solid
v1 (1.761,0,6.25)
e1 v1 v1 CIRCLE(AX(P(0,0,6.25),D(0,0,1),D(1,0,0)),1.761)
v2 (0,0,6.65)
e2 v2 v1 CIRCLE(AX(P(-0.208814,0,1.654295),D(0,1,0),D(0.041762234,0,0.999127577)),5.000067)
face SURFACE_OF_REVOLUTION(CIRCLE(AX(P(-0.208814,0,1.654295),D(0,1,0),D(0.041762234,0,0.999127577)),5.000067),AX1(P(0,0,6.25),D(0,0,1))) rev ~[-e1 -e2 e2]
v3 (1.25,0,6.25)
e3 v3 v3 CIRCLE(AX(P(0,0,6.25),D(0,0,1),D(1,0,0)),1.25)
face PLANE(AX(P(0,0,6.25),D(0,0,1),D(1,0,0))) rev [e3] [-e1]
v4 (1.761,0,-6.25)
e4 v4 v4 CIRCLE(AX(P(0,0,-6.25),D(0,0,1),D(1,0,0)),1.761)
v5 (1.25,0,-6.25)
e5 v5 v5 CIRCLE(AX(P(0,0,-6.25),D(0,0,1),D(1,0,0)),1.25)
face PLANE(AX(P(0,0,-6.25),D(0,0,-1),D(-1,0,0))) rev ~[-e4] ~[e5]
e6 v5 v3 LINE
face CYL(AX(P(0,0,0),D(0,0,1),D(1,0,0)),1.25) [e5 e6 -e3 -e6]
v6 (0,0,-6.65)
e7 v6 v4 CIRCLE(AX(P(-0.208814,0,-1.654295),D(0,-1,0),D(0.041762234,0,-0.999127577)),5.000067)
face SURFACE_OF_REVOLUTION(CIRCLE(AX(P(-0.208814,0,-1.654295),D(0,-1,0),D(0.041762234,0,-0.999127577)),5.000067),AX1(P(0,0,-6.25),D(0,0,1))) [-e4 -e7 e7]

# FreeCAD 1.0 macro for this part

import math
import FreeCAD as App
import Part
import Sketcher
Q = App.Units.Quantity

doc = App.newDocument("Part")
body = doc.addObject("PartDesign::Body", "Body")

sketch1 = body.newObject("Sketcher::SketchObject", "Sketch")
sketch1.AttachmentSupport = (doc.getObject("XY_Plane"), [""])
sketch1.MapMode = "FlatFace"
sketch1.addGeometry(Part.Circle(App.Vector(0, 0, 0), App.Vector(0, 0, 1), 1.25), False)
sketch1.addConstraint(Sketcher.Constraint("Coincident", 0, 3, -1, 1))
sketch1.addConstraint(Sketcher.Constraint("Diameter", 0, Q("2.5 mm")))
pad1 = body.newObject("PartDesign::Pad", "Pad")
pad1.Profile = sketch1
pad1.Length = 12.5
pad1.Midplane = True

sketch2 = body.newObject("Sketcher::SketchObject", "Sketch001")
sketch2.AttachmentSupport = (doc.getObject("XZ_Plane"), [""])
sketch2.MapMode = "FlatFace"
sketch2.addGeometry(Part.LineSegment(App.Vector(1.761, 6.25, 0), App.Vector(0, 6.25, 0)), False)
sketch2.addGeometry(Part.LineSegment(App.Vector(0, 6.25, 0), App.Vector(0, 6.65, 0)), False)
sketch2.addGeometry(Part.ArcOfCircle(Part.Circle(App.Vector(-0.2088, 1.6544, 0), App.Vector(0, 0, 1), 4.999962), math.radians(66.798701), math.radians(87.606614)), False)
sketch2.addConstraint(Sketcher.Constraint("Coincident", 0, 2, 1, 1))
sketch2.addConstraint(Sketcher.Constraint("Coincident", 1, 2, 2, 2))
sketch2.addConstraint(Sketcher.Constraint("Coincident", 2, 1, 0, 1))
sketch2.addConstraint(Sketcher.Constraint("Horizontal", 0))
sketch2.addConstraint(Sketcher.Constraint("Vertical", 1))
sketch2.addConstraint(Sketcher.Constraint("PointOnObject", 0, 2, -2))
sketch2.addConstraint(Sketcher.Constraint("Radius", 2, Q("5 mm")))
sketch2.addConstraint(Sketcher.Constraint("DistanceY", 1, 1, 1, 2, Q("0.4 mm")))
sketch2.addConstraint(Sketcher.Constraint("DistanceX", 0, 2, 0, 1, Q("1.761 mm")))
sketch2.addConstraint(Sketcher.Constraint("DistanceY", -1, 1, 0, 2, Q("6.25 mm")))
revolution = body.newObject("PartDesign::Revolution", "Revolution")
revolution.Profile = sketch2
revolution.ReferenceAxis = (sketch2, ["V_Axis"])
revolution.Angle = 360
doc.recompute()

mirrored = body.newObject("PartDesign::Mirrored", "Mirrored")
mirrored.Originals = [revolution]
mirrored.MirrorPlane = (doc.getObject("XY_Plane"), [""])
body.Tip = mirrored

doc.recompute()
